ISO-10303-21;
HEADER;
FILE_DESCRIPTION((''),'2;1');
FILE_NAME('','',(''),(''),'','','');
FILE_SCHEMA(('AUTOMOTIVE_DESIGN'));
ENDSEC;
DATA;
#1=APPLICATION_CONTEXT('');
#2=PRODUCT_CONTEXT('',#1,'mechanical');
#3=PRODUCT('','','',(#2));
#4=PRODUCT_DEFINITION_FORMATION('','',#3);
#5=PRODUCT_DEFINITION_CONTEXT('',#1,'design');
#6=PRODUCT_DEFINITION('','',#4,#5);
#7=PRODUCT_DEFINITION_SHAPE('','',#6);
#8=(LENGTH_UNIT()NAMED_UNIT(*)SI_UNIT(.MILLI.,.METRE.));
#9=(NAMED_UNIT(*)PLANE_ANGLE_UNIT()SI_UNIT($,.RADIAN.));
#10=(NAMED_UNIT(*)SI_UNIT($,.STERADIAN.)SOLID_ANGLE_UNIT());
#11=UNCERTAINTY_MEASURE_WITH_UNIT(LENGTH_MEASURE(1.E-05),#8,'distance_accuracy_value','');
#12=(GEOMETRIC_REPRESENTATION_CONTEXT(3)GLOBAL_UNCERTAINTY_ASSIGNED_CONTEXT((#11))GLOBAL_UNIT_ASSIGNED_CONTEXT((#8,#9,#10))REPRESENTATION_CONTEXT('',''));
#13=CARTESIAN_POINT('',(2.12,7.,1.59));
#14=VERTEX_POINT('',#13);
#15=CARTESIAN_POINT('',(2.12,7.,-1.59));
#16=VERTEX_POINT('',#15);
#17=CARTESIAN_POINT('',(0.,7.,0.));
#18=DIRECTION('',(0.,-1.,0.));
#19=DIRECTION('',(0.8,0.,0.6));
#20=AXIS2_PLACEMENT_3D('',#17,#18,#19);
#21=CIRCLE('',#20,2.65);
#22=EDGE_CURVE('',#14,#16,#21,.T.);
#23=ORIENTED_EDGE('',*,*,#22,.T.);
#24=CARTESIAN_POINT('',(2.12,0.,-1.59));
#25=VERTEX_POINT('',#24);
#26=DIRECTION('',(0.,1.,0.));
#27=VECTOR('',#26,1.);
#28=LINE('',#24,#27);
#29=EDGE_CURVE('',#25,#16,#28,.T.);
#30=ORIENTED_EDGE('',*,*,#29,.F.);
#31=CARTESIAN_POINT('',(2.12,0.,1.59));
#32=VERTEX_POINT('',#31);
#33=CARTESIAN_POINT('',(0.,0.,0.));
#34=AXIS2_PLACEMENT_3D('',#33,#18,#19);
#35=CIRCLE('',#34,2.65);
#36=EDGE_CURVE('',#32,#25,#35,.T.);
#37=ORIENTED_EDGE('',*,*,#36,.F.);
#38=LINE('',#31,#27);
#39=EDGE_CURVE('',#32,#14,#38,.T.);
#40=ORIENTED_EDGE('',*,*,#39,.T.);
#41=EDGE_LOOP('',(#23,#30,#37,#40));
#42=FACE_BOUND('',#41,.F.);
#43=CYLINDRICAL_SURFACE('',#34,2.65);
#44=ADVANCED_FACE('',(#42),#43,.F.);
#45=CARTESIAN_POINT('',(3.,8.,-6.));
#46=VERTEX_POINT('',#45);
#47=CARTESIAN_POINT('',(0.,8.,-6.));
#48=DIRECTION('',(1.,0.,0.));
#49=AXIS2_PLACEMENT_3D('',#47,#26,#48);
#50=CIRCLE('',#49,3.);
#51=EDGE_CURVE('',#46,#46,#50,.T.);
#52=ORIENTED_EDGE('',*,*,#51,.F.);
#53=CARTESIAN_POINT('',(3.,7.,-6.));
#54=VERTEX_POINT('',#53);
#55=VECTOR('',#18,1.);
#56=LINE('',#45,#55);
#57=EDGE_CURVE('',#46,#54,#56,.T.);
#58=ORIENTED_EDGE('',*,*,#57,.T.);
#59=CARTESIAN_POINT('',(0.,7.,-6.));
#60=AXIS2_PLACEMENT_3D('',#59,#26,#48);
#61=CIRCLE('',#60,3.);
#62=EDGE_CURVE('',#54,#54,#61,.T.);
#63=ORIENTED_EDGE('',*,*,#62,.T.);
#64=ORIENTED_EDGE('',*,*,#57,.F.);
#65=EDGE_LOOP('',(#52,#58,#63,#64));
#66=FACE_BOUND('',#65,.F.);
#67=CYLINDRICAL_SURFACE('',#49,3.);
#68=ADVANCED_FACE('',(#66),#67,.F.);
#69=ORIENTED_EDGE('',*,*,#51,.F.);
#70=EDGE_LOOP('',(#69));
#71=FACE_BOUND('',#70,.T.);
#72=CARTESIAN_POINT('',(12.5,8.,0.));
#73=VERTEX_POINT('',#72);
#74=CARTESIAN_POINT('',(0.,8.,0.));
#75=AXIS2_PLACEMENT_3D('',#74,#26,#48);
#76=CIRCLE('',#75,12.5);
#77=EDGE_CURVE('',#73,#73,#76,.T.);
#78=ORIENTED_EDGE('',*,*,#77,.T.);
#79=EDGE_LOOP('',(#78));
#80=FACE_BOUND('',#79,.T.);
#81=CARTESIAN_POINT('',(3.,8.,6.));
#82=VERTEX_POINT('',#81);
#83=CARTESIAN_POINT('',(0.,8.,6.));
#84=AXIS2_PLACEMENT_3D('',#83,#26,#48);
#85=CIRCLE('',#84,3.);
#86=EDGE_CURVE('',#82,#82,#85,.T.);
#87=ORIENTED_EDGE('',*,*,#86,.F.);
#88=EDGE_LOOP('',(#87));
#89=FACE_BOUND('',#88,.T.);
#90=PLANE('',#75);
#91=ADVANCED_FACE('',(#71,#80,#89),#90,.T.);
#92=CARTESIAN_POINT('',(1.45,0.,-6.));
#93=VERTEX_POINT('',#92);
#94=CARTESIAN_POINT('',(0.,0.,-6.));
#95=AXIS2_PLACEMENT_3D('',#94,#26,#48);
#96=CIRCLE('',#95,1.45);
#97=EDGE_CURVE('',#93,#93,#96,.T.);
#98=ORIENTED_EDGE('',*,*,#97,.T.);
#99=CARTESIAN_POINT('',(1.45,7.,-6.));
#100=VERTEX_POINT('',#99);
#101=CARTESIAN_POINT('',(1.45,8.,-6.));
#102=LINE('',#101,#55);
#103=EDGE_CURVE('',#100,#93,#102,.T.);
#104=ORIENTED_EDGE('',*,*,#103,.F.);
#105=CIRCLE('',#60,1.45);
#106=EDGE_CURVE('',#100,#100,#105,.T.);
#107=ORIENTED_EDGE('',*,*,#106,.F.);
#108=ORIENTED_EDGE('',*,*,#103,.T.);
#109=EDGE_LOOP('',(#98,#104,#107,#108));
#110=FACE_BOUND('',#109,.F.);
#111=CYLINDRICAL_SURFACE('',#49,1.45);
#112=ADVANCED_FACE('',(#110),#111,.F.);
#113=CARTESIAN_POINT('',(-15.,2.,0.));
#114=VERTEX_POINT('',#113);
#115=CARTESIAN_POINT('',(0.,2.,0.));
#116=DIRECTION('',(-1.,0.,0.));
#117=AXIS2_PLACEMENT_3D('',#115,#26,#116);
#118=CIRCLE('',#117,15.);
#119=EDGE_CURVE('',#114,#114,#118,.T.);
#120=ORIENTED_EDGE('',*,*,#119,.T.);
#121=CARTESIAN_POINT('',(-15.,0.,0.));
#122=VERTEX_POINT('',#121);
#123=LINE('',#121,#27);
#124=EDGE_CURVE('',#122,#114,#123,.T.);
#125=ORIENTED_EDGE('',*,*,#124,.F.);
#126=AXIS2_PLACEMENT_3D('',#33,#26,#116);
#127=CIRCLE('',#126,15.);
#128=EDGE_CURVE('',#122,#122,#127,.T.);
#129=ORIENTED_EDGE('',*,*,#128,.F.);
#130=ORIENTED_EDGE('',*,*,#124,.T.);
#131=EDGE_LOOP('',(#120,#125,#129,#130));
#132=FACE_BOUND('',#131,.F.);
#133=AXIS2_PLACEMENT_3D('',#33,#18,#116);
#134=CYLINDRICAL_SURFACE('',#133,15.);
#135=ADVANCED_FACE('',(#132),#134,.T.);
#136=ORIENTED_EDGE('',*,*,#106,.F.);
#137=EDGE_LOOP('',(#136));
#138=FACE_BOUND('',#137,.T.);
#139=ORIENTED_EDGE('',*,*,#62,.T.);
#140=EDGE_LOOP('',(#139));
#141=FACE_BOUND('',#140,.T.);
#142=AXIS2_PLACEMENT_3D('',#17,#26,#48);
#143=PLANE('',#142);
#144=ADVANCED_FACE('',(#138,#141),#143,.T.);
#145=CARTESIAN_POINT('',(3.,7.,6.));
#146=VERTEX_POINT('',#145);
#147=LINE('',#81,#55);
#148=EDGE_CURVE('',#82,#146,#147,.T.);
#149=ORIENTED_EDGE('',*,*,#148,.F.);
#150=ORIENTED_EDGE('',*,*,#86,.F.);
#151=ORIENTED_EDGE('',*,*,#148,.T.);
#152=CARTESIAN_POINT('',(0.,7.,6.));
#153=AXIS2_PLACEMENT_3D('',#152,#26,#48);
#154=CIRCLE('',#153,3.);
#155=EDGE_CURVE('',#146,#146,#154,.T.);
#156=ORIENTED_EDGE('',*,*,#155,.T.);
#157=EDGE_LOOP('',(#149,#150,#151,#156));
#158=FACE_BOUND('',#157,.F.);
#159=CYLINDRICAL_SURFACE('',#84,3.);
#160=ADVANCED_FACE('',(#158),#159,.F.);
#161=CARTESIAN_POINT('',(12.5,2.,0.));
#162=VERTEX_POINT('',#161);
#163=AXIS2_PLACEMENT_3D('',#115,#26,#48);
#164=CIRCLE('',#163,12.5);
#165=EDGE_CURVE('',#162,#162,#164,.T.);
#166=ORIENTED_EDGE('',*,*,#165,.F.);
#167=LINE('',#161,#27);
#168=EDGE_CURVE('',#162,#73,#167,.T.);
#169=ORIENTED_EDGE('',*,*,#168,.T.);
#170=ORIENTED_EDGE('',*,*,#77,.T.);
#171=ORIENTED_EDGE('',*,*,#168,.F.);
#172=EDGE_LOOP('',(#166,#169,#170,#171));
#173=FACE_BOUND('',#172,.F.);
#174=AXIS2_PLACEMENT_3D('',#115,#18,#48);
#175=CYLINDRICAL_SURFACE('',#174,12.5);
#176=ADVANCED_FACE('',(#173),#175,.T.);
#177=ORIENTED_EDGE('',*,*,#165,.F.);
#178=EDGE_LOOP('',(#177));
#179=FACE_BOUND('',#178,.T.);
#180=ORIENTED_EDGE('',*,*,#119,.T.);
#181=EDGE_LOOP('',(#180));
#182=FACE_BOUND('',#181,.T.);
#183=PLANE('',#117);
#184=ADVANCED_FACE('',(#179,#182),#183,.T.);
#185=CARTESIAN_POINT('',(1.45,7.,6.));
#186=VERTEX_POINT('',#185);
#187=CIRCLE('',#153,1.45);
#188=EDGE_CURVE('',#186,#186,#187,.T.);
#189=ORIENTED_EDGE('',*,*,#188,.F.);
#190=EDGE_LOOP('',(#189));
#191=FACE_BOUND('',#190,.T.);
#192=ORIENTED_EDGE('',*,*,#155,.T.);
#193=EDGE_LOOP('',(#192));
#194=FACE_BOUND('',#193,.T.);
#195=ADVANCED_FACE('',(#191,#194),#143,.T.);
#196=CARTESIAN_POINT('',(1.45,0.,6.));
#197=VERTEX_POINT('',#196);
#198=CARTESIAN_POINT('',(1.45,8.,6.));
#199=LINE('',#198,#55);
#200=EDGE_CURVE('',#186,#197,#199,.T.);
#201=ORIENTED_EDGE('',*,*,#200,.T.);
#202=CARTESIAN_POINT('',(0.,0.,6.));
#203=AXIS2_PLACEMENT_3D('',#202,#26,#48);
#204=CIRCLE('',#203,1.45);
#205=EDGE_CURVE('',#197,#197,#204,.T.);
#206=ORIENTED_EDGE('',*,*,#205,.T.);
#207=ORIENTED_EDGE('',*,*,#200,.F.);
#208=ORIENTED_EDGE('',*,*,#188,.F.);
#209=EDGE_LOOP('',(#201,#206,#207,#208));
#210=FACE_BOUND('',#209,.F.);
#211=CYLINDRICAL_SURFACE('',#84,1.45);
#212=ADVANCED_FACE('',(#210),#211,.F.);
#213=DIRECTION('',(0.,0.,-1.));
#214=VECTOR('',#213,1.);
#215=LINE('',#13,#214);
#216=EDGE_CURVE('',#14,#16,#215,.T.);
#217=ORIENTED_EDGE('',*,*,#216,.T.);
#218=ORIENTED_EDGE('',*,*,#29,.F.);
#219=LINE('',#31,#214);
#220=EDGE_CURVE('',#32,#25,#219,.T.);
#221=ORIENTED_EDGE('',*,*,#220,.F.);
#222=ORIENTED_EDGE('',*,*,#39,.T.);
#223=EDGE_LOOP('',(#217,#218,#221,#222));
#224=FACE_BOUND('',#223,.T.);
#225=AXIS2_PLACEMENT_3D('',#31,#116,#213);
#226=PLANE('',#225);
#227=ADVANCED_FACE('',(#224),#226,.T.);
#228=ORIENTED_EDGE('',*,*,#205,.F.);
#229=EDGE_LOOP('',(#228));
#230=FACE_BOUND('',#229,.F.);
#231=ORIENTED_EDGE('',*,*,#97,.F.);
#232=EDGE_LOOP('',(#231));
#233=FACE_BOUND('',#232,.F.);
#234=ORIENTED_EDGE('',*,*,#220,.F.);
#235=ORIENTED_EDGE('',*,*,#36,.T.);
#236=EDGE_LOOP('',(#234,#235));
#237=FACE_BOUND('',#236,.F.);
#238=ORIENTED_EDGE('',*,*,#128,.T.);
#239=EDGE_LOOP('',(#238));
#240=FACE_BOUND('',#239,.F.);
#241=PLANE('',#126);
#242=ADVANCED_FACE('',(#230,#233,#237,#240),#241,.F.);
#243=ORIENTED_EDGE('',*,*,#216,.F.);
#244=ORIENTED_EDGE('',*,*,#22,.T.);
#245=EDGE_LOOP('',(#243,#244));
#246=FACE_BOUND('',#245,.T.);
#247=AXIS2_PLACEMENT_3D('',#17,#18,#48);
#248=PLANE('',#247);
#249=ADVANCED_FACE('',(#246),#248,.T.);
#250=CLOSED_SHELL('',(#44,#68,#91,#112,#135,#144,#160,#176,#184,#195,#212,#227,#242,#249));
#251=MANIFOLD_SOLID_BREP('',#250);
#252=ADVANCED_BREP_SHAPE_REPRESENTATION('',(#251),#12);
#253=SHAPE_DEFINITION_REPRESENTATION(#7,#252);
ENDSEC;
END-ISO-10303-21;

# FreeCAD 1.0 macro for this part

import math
import FreeCAD as App
import Part
import Sketcher
Q = App.Units.Quantity

doc = App.newDocument("Part")
body = doc.addObject("PartDesign::Body", "Body")

sketch1 = body.newObject("Sketcher::SketchObject", "Sketch")
sketch1.AttachmentSupport = (doc.getObject("XZ_Plane"), [""])
sketch1.MapMode = "FlatFace"
sketch1.addGeometry(Part.Circle(App.Vector(0, 0, 0), App.Vector(0, 0, 1), 15), False)
sketch1.addConstraint([
    Sketcher.Constraint("Coincident", 0, 3, -1, 1),
    Sketcher.Constraint("Diameter", 0, Q("30 mm")),
])
pad1 = body.newObject("PartDesign::Pad", "Pad")
pad1.Profile = sketch1
pad1.Length = 2
pad1.Reversed = True

sketch2 = body.newObject("Sketcher::SketchObject", "Sketch001")
sketch2.AttachmentSupport = (doc.getObject("XZ_Plane"), [""])
sketch2.MapMode = "FlatFace"
sketch2.AttachmentOffset = App.Placement(App.Vector(0, 0, -2), App.Rotation())
sketch2.addGeometry(Part.Circle(App.Vector(0, 0, 0), App.Vector(0, 0, 1), 12.5), False)
sketch2.addConstraint([
    Sketcher.Constraint("Coincident", 0, 3, -1, 1),
    Sketcher.Constraint("Diameter", 0, Q("25 mm")),
])
pad2 = body.newObject("PartDesign::Pad", "Pad001")
pad2.Profile = sketch2
pad2.Length = 6
pad2.Reversed = True

sketch3 = body.newObject("Sketcher::SketchObject", "Sketch002")
sketch3.AttachmentSupport = (doc.getObject("XZ_Plane"), [""])
sketch3.MapMode = "FlatFace"
sketch3.AttachmentOffset = App.Placement(App.Vector(0, 0, -8), App.Rotation())
sketch3.addGeometry([
    Part.Circle(App.Vector(0, 6, 0), App.Vector(0, 0, 1), 1.45),
    Part.Circle(App.Vector(0, -6, 0), App.Vector(0, 0, 1), 1.45),
], False)
sketch3.addConstraint([
    Sketcher.Constraint("Equal", 0, 1),
    Sketcher.Constraint("Symmetric", 0, 3, 1, 3, -1, 1),
    Sketcher.Constraint("PointOnObject", 0, 3, -2),
    Sketcher.Constraint("Diameter", 0, Q("2.9 mm")),
    Sketcher.Constraint("DistanceY", -1, 1, 0, 3, Q("6 mm")),
])
pocket1 = body.newObject("PartDesign::Pocket", "Pocket")
pocket1.Profile = sketch3
pocket1.Length = 8
pocket1.Reversed = True

sketch4 = body.newObject("Sketcher::SketchObject", "Sketch003")
sketch4.AttachmentSupport = (doc.getObject("XZ_Plane"), [""])
sketch4.MapMode = "FlatFace"
sketch4.addGeometry([
    Part.LineSegment(App.Vector(2.12, -1.59, 0), App.Vector(2.12, 1.59, 0)),
    Part.ArcOfCircle(Part.Circle(App.Vector(0, 0, 0), App.Vector(0, 0, 1), 2.65), math.radians(36.869898), math.radians(323.130102)),
], False)
sketch4.addConstraint([
    Sketcher.Constraint("Coincident", 0, 1, 1, 2),
    Sketcher.Constraint("Coincident", 1, 1, 0, 2),
    Sketcher.Constraint("Vertical", 0),
    Sketcher.Constraint("Coincident", 1, 3, -1, 1),
    Sketcher.Constraint("Radius", 1, Q("2.65 mm")),
    Sketcher.Constraint("DistanceX", -1, 1, 0, 1, Q("2.12 mm")),
])
pocket2 = body.newObject("PartDesign::Pocket", "Pocket001")
pocket2.Profile = sketch4
pocket2.Length = 7

sketch5 = body.newObject("Sketcher::SketchObject", "Sketch004")
sketch5.AttachmentSupport = (doc.getObject("XZ_Plane"), [""])
sketch5.MapMode = "FlatFace"
sketch5.AttachmentOffset = App.Placement(App.Vector(0, 0, -8), App.Rotation())
sketch5.addGeometry([
    Part.Circle(App.Vector(0, 6, 0), App.Vector(0, 0, 1), 3),
    Part.Circle(App.Vector(0, 6, 0), App.Vector(0, 0, 1), 1.45),
    Part.Circle(App.Vector(0, -6, 0), App.Vector(0, 0, 1), 3),
    Part.Circle(App.Vector(0, -6, 0), App.Vector(0, 0, 1), 1.45),
], False)
sketch5.addConstraint([
    Sketcher.Constraint("Coincident", 1, 3, 0, 3),
    Sketcher.Constraint("Coincident", 3, 3, 2, 3),
    Sketcher.Constraint("Equal", 0, 2),
    Sketcher.Constraint("Equal", 1, 3),
    Sketcher.Constraint("Symmetric", 0, 3, 2, 3, -1, 1),
    Sketcher.Constraint("PointOnObject", 0, 3, -2),
    Sketcher.Constraint("Diameter", 0, Q("6 mm")),
    Sketcher.Constraint("DistanceY", -1, 1, 0, 3, Q("6 mm")),
    Sketcher.Constraint("Diameter", 1, Q("2.9 mm")),
])
pocket3 = body.newObject("PartDesign::Pocket", "Pocket002")
pocket3.Profile = sketch5
pocket3.Length = 1
pocket3.Reversed = True

doc.recompute()
